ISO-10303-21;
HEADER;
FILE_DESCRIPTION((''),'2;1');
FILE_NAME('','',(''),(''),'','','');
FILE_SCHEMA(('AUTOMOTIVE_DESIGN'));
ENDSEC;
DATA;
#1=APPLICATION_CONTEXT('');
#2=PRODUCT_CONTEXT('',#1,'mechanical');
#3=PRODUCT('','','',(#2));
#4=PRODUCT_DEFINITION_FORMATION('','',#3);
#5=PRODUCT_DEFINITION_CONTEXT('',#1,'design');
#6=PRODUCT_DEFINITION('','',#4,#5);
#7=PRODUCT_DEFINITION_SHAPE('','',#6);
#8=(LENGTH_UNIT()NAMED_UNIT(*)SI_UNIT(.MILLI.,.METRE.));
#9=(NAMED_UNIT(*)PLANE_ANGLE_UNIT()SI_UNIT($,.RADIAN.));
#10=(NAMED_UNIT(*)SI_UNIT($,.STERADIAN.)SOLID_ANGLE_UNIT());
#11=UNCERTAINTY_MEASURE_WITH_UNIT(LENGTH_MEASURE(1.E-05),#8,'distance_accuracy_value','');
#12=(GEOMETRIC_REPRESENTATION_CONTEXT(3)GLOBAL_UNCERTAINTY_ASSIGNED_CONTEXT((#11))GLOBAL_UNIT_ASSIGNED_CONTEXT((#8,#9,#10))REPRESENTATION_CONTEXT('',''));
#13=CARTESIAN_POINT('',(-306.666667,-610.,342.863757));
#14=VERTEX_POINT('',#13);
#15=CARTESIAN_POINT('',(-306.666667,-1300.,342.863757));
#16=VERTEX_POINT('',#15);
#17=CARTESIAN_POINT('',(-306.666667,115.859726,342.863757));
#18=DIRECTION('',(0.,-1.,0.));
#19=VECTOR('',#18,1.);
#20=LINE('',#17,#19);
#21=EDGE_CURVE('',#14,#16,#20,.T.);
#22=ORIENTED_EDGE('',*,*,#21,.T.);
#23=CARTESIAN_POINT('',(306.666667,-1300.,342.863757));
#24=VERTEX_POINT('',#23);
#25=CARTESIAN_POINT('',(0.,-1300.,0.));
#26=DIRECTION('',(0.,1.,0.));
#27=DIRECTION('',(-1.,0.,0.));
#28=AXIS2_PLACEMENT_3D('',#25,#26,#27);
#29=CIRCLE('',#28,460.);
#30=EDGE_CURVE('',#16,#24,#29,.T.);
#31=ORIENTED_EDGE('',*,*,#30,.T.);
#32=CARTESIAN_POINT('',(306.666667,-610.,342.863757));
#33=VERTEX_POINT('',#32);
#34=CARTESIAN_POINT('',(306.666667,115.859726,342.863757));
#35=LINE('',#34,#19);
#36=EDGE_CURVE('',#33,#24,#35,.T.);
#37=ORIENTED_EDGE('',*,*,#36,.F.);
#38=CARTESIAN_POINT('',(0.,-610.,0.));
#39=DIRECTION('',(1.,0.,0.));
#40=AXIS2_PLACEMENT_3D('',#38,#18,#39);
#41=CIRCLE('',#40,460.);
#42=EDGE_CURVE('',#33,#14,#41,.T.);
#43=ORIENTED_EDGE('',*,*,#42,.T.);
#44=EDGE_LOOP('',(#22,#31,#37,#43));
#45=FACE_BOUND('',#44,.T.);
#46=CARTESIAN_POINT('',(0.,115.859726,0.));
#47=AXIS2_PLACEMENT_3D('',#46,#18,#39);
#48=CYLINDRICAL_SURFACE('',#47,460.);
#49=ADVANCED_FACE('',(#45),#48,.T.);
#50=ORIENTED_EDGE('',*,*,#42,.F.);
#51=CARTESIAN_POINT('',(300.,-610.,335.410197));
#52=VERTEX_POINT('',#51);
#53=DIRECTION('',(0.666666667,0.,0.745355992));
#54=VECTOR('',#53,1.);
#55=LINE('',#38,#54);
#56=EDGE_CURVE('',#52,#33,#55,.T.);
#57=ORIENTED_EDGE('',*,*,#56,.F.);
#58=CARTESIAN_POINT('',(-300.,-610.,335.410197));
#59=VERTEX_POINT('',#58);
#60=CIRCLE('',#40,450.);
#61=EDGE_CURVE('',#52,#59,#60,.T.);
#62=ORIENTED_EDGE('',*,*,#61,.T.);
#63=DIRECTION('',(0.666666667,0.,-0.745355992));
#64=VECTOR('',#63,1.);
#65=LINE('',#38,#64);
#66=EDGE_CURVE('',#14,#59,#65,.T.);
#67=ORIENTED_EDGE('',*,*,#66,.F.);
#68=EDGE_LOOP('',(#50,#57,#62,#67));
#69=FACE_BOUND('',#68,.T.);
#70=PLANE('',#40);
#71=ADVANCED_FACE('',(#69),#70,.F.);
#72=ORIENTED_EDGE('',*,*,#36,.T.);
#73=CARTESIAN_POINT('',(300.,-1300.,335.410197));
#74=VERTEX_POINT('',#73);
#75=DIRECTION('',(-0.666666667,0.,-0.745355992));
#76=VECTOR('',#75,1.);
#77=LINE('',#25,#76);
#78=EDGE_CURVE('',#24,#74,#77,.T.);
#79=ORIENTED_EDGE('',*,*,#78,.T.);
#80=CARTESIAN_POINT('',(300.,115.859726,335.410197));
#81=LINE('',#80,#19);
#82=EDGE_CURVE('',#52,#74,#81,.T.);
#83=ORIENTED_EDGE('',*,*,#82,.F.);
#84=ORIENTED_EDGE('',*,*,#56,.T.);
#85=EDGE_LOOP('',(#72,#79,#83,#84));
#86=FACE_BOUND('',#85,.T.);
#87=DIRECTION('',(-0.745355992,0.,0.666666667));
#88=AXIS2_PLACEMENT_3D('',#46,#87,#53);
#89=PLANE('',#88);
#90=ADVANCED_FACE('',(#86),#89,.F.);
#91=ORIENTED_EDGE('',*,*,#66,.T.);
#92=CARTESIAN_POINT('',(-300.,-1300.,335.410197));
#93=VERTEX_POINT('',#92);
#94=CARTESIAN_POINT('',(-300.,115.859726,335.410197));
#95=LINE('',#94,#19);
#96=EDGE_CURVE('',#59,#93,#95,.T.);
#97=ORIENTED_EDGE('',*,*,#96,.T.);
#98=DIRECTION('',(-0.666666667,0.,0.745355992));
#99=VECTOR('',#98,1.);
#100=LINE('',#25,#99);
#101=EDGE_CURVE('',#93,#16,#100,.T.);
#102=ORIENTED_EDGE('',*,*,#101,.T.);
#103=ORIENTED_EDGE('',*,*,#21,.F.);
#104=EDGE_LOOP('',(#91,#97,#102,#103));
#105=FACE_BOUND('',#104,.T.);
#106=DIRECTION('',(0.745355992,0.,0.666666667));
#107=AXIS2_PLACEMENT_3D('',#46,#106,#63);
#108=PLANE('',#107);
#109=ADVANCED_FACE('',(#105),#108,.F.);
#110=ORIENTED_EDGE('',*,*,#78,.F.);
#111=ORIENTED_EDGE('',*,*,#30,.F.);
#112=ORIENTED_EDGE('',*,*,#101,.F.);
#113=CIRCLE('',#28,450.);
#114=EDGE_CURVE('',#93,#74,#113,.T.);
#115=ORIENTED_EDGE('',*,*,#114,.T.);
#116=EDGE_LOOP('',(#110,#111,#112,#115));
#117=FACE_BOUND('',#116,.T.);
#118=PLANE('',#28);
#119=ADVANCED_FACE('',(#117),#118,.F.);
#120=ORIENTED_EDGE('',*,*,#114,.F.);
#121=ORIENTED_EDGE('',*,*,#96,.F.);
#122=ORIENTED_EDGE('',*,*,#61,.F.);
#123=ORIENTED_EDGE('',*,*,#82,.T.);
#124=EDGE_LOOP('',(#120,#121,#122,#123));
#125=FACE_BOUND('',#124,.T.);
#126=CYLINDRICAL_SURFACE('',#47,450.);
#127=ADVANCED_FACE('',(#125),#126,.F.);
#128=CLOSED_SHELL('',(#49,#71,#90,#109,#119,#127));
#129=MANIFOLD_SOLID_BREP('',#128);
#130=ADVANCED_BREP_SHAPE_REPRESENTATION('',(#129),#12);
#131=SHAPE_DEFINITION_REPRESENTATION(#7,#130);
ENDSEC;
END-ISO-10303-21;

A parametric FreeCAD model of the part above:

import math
import FreeCAD as App
import Part
import Sketcher
from FreeCAD import Vector
Q = App.Units.Quantity

doc = App.newDocument("Part")
body = doc.addObject("PartDesign::Body", "Body")

# Sketch on XZ plane
sketch1 = body.newObject("Sketcher::SketchObject", "Sketch")
sketch1.AttachmentSupport = (doc.getObject("XZ_Plane"), [""])
sketch1.MapMode = "FlatFace"
sketch1.AttachmentOffset = App.Placement(Vector(0, 0, 1300), App.Rotation())
sketch1.addGeometry([
    Part.LineSegment(Vector(-306.666667, 342.863757, 0), Vector(-300, 335.410197, 0)),
    Part.ArcOfCircle(Part.Circle(Vector(0, 0, 0), Vector(0, 0, 1), 450), math.radians(48.189685), math.radians(131.810315)),
    Part.LineSegment(Vector(300, 335.410197, 0), Vector(306.666667, 342.863757, 0)),
    Part.ArcOfCircle(Part.Circle(Vector(0, 0, 0), Vector(0, 0, 1), 460), math.radians(48.189685), math.radians(131.810315)),
], False)
sketch1.addConstraint([
    Sketcher.Constraint("Coincident", 0, 2, 1, 2),
    Sketcher.Constraint("Coincident", 1, 1, 2, 1),
    Sketcher.Constraint("Coincident", 2, 2, 3, 1),
    Sketcher.Constraint("Coincident", 3, 2, 0, 1),
    Sketcher.Constraint("Coincident", 1, 3, -1, 1),
    Sketcher.Constraint("Coincident", 3, 3, -1, 1),
    Sketcher.Constraint("Horizontal", 0, 2, 1, 1),
    Sketcher.Constraint("Horizontal", 2, 2, 3, 2),
    Sketcher.Constraint("Radius", 1, Q("450 mm")),
    Sketcher.Constraint("Radius", 3, Q("460 mm")),
    Sketcher.Constraint("DistanceX", 0, 2, -1, 1, Q("300 mm")),
    Sketcher.Constraint("DistanceY", 0, 2, 2, 2, Q("7.45356 mm")),
])
pad1 = body.newObject("PartDesign::Pad", "Pad")
pad1.Profile = sketch1
pad1.Length = 690
pad1.Reversed = True

doc.recompute()
